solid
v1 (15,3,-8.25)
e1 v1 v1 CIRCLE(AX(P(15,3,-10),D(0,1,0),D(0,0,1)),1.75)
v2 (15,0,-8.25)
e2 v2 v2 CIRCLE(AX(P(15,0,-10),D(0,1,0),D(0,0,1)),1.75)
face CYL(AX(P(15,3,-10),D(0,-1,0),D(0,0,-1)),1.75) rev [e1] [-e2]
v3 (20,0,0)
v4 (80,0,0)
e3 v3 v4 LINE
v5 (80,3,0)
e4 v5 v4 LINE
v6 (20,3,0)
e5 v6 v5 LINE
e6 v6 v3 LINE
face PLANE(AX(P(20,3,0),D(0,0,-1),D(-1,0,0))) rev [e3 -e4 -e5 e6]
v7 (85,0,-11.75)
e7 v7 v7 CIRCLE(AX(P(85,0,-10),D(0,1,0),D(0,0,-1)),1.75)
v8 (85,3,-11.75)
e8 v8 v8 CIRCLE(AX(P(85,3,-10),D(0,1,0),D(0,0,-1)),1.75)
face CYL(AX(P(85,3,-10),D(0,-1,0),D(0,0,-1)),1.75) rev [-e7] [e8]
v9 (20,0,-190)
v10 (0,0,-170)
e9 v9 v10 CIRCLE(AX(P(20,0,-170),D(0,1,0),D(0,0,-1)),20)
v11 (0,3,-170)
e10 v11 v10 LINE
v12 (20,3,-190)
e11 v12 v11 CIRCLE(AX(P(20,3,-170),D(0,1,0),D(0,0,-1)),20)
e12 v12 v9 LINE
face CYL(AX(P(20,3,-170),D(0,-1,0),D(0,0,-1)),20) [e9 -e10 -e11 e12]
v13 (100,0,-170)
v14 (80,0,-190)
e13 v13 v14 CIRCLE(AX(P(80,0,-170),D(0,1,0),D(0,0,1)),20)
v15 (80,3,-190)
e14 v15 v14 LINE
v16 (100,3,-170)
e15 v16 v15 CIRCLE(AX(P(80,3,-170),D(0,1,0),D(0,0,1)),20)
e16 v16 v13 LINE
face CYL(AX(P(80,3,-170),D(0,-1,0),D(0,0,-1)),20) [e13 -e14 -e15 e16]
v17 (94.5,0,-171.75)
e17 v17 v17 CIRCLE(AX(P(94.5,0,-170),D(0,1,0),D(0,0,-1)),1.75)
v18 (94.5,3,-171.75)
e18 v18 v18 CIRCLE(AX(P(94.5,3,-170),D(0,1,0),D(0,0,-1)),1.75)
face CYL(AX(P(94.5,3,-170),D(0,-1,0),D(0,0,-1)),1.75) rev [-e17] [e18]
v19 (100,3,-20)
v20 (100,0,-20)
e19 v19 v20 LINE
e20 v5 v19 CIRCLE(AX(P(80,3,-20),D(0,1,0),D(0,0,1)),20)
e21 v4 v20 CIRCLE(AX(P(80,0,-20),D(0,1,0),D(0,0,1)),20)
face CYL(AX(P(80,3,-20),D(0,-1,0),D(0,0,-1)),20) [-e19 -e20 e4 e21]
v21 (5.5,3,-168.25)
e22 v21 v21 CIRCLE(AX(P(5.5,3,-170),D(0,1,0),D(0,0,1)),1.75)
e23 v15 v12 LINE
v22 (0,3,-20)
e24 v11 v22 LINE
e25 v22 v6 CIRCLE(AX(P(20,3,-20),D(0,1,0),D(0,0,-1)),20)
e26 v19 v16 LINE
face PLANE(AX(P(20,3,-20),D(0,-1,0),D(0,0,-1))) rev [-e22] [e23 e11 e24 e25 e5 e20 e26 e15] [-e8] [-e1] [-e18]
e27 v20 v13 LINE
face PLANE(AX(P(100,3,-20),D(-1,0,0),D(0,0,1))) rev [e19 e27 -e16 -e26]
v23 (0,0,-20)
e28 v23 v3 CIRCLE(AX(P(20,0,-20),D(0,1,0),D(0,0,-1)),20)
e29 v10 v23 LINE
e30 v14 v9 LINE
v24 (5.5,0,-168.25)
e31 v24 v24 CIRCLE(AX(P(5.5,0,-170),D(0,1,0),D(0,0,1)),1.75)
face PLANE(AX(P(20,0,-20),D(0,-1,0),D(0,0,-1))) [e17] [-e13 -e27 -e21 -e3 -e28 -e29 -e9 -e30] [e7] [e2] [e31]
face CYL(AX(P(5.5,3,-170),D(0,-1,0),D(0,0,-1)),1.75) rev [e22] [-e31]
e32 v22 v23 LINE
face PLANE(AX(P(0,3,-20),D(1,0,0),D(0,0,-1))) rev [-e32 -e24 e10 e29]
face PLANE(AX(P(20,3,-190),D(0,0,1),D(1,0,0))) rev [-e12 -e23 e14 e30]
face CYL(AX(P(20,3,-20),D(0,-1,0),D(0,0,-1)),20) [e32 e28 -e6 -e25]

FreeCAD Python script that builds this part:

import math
import FreeCAD as App
import Part
import Sketcher

V = App.Vector
Q = App.Units.Quantity

doc = App.newDocument("Part")
params = doc.addObject("Spreadsheet::Sheet", "Params")
for row, (alias, value) in enumerate([
    ("sketch1_radius", "20 mm"),
    ("sketch1_diameter", "3.5 mm"),
    ("sketch1_width", "60 mm"),
    ("sketch1_height", "150 mm"),
    ("pad1_length", "3 mm"),
], start=1):
    params.set(f"A{row}", alias)
    params.set(f"B{row}", "=" + value)
    params.setAlias(f"B{row}", alias)

body = doc.addObject("PartDesign::Body", "Body")

# Sketch on XZ plane
sketch1 = body.newObject("Sketcher::SketchObject", "Sketch")
sketch1.AttachmentSupport = (doc.getObject("XZ_Plane"), [""])
sketch1.MapMode = "FlatFace"
sketch1.addGeometry([
    Part.LineSegment(V(20, 0, 0), V(80, 0, 0)),  # 0
    Part.ArcOfCircle(Part.Circle(V(80, -20, 0), V(0, 0, 1), 20), math.radians(0), math.radians(90)),  # 1
    Part.LineSegment(V(100, -20, 0), V(100, -170, 0)),  # 2
    Part.ArcOfCircle(Part.Circle(V(80, -170, 0), V(0, 0, 1), 20), math.radians(-90), math.radians(0)),  # 3
    Part.LineSegment(V(80, -190, 0), V(20, -190, 0)),  # 4
    Part.ArcOfCircle(Part.Circle(V(20, -170, 0), V(0, 0, 1), 20), math.radians(180), math.radians(270)),  # 5
    Part.LineSegment(V(0, -170, 0), V(0, -20, 0)),  # 6
    Part.ArcOfCircle(Part.Circle(V(20, -20, 0), V(0, 0, 1), 20), math.radians(90), math.radians(180)),  # 7
    Part.Circle(V(15, -10, 0), V(0, 0, 1), 1.8),  # 8
    Part.Circle(V(85, -10, 0), V(0, 0, 1), 1.8),  # 9
    Part.Circle(V(5.5, -170, 0), V(0, 0, 1), 1.8),  # 10
    Part.Circle(V(94.5, -170, 0), V(0, 0, 1), 1.8),  # 11
], False)
sketch1.addConstraint([
    Sketcher.Constraint("Tangent", 0, 2, 1, 2),
    Sketcher.Constraint("Tangent", 1, 1, 2, 1),
    Sketcher.Constraint("Tangent", 2, 2, 3, 2),
    Sketcher.Constraint("Tangent", 3, 1, 4, 1),
    Sketcher.Constraint("Tangent", 4, 2, 5, 2),
    Sketcher.Constraint("Tangent", 5, 1, 6, 1),
    Sketcher.Constraint("Tangent", 6, 2, 7, 2),
    Sketcher.Constraint("Tangent", 7, 1, 0, 1),
    Sketcher.Constraint("Horizontal", 0),
    Sketcher.Constraint("Vertical", 2),
    Sketcher.Constraint("Horizontal", 4),
    Sketcher.Constraint("Vertical", 6),
    Sketcher.Constraint("Equal", 1, 3),
    Sketcher.Constraint("Equal", 3, 5),
    Sketcher.Constraint("Equal", 5, 7),
    Sketcher.Constraint("Equal", 8, 9),
    Sketcher.Constraint("Equal", 9, 10),
    Sketcher.Constraint("Equal", 10, 11),
    Sketcher.Constraint("PointOnObject", 0, 2, -1),
    Sketcher.Constraint("PointOnObject", 5, 1, -2),
    Sketcher.Constraint("Horizontal", 8, 3, 9, 3),
    Sketcher.Constraint("Horizontal", 5, 3, 10, 3),
    Sketcher.Constraint("Horizontal", 10, 3, 11, 3),
    Sketcher.Constraint("Radius", 1, Q("20 mm")),
    Sketcher.Constraint("Diameter", 8, Q("3.5 mm")),
    Sketcher.Constraint("DistanceX", 0, 1, 0, 2, Q("60 mm")),
    Sketcher.Constraint("DistanceY", 2, 2, 2, 1, Q("150 mm")),
    Sketcher.Constraint("DistanceX", -1, 1, 8, 3, Q("15 mm")),
    Sketcher.Constraint("DistanceY", 8, 3, -1, 1, Q("10 mm")),
    Sketcher.Constraint("DistanceX", -1, 1, 9, 3, Q("85 mm")),
    Sketcher.Constraint("DistanceX", 10, 3, 11, 3, Q("89 mm")),
    Sketcher.Constraint("DistanceX", -1, 1, 10, 3, Q("5.5 mm")),
])
sketch1.setExpression("Constraints[23]", "Params.sketch1_radius")
sketch1.setExpression("Constraints[24]", "Params.sketch1_diameter")
sketch1.setExpression("Constraints[25]", "Params.sketch1_width")
sketch1.setExpression("Constraints[26]", "Params.sketch1_height")
pad1 = body.newObject("PartDesign::Pad", "Pad")
pad1.Profile = sketch1
pad1.setExpression("Length", "Params.pad1_length")
pad1.Reversed = True

doc.recompute()
